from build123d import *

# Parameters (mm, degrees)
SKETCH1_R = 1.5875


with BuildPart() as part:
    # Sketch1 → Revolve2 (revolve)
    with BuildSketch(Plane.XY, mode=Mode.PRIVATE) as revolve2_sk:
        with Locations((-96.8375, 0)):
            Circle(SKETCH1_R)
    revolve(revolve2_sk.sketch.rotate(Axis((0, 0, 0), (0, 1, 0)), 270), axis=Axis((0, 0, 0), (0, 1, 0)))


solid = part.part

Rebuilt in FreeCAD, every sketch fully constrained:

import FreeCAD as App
import Part
import Sketcher
Q = App.Units.Quantity

doc = App.newDocument("Part")
body = doc.addObject("PartDesign::Body", "Body")

# Sketch on XY plane
sketch1 = body.newObject("Sketcher::SketchObject", "Sketch")
sketch1.AttachmentSupport = (doc.getObject("XY_Plane"), [""])
sketch1.MapMode = "FlatFace"
sketch1.addGeometry(Part.Circle(App.Vector(-96.8, 0, 0), App.Vector(0, 0, 1), 1.6), False)
sketch1.addConstraint(Sketcher.Constraint("PointOnObject", 0, 3, -1))
sketch1.addConstraint(Sketcher.Constraint("Diameter", 0, Q("0.125 in")))
sketch1.addConstraint(Sketcher.Constraint("DistanceX", 0, 3, -1, 1, Q("3.8125 in")))
revolution = body.newObject("PartDesign::Revolution", "Revolution")
revolution.Profile = sketch1
revolution.ReferenceAxis = (sketch1, ["V_Axis"])
revolution.Angle = 360

doc.recompute()
